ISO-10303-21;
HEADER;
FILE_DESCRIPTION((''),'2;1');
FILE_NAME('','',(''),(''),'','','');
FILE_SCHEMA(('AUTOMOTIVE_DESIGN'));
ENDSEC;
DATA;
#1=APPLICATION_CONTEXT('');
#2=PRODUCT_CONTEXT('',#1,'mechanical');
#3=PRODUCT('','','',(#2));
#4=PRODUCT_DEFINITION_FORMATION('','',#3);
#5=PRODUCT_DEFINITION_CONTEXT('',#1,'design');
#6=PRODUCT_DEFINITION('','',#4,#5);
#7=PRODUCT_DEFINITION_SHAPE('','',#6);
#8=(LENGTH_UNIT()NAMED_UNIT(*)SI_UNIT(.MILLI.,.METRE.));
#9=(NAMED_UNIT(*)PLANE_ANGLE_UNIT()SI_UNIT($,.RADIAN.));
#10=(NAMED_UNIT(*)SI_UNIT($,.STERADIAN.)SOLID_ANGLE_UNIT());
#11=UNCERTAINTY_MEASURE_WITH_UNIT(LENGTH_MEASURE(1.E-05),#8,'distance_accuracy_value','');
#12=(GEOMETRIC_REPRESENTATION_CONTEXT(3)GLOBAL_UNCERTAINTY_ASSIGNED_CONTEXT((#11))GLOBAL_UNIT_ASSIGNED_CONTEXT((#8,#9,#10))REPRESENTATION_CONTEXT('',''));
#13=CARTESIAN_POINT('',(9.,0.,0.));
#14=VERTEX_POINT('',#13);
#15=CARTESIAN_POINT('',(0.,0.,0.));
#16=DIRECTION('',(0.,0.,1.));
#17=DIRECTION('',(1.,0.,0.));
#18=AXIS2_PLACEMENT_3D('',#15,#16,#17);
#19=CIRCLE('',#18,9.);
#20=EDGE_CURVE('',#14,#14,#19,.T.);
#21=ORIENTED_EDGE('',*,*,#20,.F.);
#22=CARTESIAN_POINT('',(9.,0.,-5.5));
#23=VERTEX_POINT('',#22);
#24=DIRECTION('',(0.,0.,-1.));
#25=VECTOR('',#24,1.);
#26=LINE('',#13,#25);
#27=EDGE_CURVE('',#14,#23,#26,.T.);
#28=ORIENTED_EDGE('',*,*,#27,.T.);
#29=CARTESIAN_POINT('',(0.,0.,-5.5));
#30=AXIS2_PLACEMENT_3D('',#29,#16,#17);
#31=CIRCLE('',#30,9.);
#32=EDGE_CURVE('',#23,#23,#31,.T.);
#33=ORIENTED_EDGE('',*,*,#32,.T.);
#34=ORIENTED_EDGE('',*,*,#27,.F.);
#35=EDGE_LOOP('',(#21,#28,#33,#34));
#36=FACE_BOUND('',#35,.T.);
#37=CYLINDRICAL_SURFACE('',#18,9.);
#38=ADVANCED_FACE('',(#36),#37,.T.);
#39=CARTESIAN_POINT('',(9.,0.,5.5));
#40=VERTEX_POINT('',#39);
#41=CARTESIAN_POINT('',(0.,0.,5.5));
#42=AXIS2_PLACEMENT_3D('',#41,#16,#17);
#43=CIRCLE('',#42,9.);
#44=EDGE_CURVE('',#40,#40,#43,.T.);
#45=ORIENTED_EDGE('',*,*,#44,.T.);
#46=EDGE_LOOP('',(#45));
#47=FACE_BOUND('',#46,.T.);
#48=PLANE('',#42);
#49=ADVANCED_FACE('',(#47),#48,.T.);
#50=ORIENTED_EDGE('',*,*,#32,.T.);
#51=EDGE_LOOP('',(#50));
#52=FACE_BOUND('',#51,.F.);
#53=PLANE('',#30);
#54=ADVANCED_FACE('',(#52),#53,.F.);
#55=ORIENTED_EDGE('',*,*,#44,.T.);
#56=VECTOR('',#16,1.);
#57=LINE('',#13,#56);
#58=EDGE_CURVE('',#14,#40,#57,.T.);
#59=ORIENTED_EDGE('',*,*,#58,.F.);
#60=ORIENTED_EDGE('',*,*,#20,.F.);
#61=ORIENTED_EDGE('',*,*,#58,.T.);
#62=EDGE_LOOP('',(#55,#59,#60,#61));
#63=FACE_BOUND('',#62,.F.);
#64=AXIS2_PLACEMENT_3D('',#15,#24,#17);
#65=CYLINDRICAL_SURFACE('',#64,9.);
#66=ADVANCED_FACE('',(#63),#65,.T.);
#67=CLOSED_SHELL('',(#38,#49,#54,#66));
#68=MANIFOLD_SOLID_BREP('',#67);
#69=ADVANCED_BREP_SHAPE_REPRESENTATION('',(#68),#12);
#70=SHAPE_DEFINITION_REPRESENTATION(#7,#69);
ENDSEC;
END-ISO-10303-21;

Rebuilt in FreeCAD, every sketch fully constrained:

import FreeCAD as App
import Part
import Sketcher
from FreeCAD import Vector
Q = App.Units.Quantity

doc = App.newDocument("Part")
body = doc.addObject("PartDesign::Body", "Body")

# Sketch on XY plane
sketch1 = doc.addObject("Sketcher::SketchObject", "Sketch")
body.addObject(sketch1)
sketch1.AttachmentSupport = (doc.XY_Plane, [""])
sketch1.MapMode = "FlatFace"
sketch1.addGeometry(Part.Circle(Vector(0, 0, 0), Vector(0, 0, 1), 9), False)
sketch1.addConstraint([
    Sketcher.Constraint("Coincident", 0, 3, -1, 1),
    Sketcher.Constraint("Diameter", 0, Q("18 mm")),
])
pad1 = doc.addObject("PartDesign::Pad", "Pad")
body.addObject(pad1)
pad1.Profile = sketch1
pad1.Length = 11
pad1.Midplane = True

doc.recompute()
